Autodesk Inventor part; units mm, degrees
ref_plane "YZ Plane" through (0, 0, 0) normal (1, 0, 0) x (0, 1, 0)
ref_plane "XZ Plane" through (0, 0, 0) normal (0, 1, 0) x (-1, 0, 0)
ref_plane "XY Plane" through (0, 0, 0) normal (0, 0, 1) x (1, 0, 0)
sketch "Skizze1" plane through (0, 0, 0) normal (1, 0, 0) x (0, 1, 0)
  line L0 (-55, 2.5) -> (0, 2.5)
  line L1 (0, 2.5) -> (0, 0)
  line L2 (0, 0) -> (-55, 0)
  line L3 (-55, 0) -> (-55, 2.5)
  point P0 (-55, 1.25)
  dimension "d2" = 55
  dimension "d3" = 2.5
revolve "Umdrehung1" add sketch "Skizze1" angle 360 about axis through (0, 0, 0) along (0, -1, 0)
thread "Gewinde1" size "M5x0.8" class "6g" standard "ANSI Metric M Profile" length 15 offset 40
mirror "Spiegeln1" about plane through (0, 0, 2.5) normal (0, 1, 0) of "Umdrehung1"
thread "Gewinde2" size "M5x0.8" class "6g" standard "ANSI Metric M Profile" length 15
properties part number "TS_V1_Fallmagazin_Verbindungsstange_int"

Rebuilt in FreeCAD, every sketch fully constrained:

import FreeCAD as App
import Part
import Sketcher
from FreeCAD import Vector
Q = App.Units.Quantity

doc = App.newDocument("Part")
params = doc.addObject("Spreadsheet::Sheet", "Params")
for row, (alias, value) in enumerate([
    ("sketch1_width", "55 mm"),
    ("sketch1_height", "2.5 mm"),
    ("revolution_angle", "360 deg"),
], start=1):
    params.set(f"A{row}", alias)
    params.set(f"B{row}", "=" + value)
    params.setAlias(f"B{row}", alias)

body = doc.addObject("PartDesign::Body", "Body")

# Sketch on YZ plane
sketch1 = body.newObject("Sketcher::SketchObject", "Sketch")
sketch1.AttachmentSupport = (doc.getObject("YZ_Plane"), [""])
sketch1.MapMode = "FlatFace"
sketch1.addGeometry([
    Part.LineSegment(Vector(0, 2.5, 0), Vector(-55, 2.5, 0)),
    Part.LineSegment(Vector(-55, 2.5, 0), Vector(-55, 0, 0)),
    Part.LineSegment(Vector(-55, 0, 0), Vector(0, 0, 0)),
    Part.LineSegment(Vector(0, 0, 0), Vector(0, 2.5, 0)),
], False)
sketch1.addConstraint([
    Sketcher.Constraint("Coincident", 0, 2, 1, 1),
    Sketcher.Constraint("Coincident", 1, 2, 2, 1),
    Sketcher.Constraint("Coincident", 2, 2, 3, 1),
    Sketcher.Constraint("Coincident", 3, 2, 0, 1),
    Sketcher.Constraint("Horizontal", 0),
    Sketcher.Constraint("Vertical", 1),
    Sketcher.Constraint("Horizontal", 2),
    Sketcher.Constraint("Vertical", 3),
    Sketcher.Constraint("Coincident", 2, 2, -1, 1),
    Sketcher.Constraint("DistanceX", 0, 2, 0, 1, Q("55 mm")),
    Sketcher.Constraint("DistanceY", 1, 2, 1, 1, Q("2.5 mm")),
])
sketch1.setExpression("Constraints[9]", "Params.sketch1_width")
sketch1.setExpression("Constraints[10]", "Params.sketch1_height")
revolution = body.newObject("PartDesign::Revolution", "Revolution")
revolution.Profile = sketch1
revolution.ReferenceAxis = (sketch1, ["H_Axis"])
revolution.setExpression("Angle", "Params.revolution_angle")
doc.recompute()

mirrored = body.newObject("PartDesign::Mirrored", "Mirrored")
mirrored.Originals = [revolution]
mirrored.MirrorPlane = (doc.getObject("XZ_Plane"), [""])
body.Tip = mirrored

doc.recompute()
